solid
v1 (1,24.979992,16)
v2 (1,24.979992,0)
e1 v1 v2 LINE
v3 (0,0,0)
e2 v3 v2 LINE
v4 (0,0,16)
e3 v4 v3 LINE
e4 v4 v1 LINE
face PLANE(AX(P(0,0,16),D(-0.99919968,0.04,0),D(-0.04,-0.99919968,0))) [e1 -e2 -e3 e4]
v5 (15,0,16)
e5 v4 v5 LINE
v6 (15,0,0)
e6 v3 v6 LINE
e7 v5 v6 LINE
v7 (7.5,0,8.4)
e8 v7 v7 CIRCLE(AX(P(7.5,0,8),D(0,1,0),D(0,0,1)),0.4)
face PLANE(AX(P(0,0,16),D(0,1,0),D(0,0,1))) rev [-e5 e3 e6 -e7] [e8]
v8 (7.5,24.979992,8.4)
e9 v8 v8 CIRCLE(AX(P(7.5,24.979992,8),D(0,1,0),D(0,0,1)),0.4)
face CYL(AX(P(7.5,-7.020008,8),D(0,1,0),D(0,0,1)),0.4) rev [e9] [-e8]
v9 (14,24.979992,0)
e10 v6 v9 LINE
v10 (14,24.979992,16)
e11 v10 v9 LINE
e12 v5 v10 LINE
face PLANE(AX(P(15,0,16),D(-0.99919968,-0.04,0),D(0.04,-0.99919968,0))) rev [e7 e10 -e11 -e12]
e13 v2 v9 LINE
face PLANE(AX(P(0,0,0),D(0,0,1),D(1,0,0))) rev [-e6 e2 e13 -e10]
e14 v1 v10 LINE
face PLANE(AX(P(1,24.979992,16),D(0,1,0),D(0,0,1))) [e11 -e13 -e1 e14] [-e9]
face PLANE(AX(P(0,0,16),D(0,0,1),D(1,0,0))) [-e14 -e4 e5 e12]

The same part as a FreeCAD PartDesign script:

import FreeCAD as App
import Part
import Sketcher


def add_polygon(sketch, points):
    """Adds a closed chain of lines whose ends are joined by coincident constraints."""
    first, n = sketch.GeometryCount, len(points)
    for a, b in zip(points, points[1:] + points[:1]):
        sketch.addGeometry(Part.LineSegment(App.Vector(*a, 0), App.Vector(*b, 0)), False)
    for i in range(n):
        sketch.addConstraint(Sketcher.Constraint("Coincident", first + i, 2, first + (i + 1) % n, 1))

doc = App.newDocument("Part")
body = doc.addObject("PartDesign::Body", "Body")

sketch1 = doc.addObject("Sketcher::SketchObject", "Sketch")
body.addObject(sketch1)
sketch1.AttachmentSupport = (doc.XY_Plane, [""])
sketch1.MapMode = "FlatFace"
add_polygon(sketch1, [(0, 0), (15, 0), (14, 24.979992), (1, 24.979992)])
sketch1.addConstraint([
    Sketcher.Constraint("Horizontal", 0),
    Sketcher.Constraint("Horizontal", 2),
    Sketcher.Constraint("Coincident", 3, 2, -1, 1),
    Sketcher.Constraint("Equal", 1, 3),
    Sketcher.Constraint("DistanceX", 0, 1, 0, 2, 15.0),
    Sketcher.Constraint("DistanceX", 2, 2, 2, 1, 13.0),
    Sketcher.Constraint("Distance", 1, 25.0),
])
pad1 = doc.addObject("PartDesign::Pad", "Pad")
body.addObject(pad1)
pad1.Profile = sketch1
pad1.Length = 16

sketch2 = doc.addObject("Sketcher::SketchObject", "Sketch001")
body.addObject(sketch2)
sketch2.AttachmentSupport = (doc.XZ_Plane, [""])
sketch2.MapMode = "FlatFace"
sketch2.AttachmentOffset = App.Placement(App.Vector(0, 0, -24.979992), App.Rotation())
sketch2.addGeometry(Part.Circle(App.Vector(7.5, 8, 0), App.Vector(0, 0, 1), 0.4), False)
sketch2.addConstraint([
    Sketcher.Constraint("Diameter", 0, 0.8),
    Sketcher.Constraint("DistanceY", -1, 1, 0, 3, 8.0),
    Sketcher.Constraint("DistanceX", -1, 1, 0, 3, 7.5),
])
pocket1 = doc.addObject("PartDesign::Pocket", "Pocket")
body.addObject(pocket1)
pocket1.Profile = sketch2
pocket1.Length = 32
pocket1.Reversed = True

doc.recompute()
